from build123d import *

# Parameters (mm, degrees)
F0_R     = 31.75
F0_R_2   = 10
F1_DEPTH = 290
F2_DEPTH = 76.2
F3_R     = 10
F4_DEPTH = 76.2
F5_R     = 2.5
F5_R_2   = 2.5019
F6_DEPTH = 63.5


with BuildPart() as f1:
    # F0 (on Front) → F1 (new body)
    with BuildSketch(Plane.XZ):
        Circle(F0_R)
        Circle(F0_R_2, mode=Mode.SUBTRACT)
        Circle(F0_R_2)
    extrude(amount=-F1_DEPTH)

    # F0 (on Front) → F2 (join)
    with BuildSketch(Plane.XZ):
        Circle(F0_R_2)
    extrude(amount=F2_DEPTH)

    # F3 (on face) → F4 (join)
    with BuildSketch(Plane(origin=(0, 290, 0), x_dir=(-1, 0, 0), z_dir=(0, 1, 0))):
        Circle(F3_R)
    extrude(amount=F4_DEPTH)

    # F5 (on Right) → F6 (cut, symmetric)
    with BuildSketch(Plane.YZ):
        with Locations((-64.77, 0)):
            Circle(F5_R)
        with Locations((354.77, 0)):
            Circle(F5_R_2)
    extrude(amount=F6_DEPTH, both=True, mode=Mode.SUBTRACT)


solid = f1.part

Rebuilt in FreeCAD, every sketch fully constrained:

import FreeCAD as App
import Part
import Sketcher
from FreeCAD import Vector
Q = App.Units.Quantity

doc = App.newDocument("Part")
body = doc.addObject("PartDesign::Body", "Body")

# Sketch on XZ plane
sketch1 = doc.addObject("Sketcher::SketchObject", "Sketch")
body.addObject(sketch1)
sketch1.AttachmentSupport = (doc.XZ_Plane, [""])
sketch1.MapMode = "FlatFace"
sketch1.addGeometry(Part.Circle(Vector(0, 0, 0), Vector(0, 0, 1), 32), False)
sketch1.addConstraint([
    Sketcher.Constraint("Coincident", 0, 3, -1, 1),
    Sketcher.Constraint("Diameter", 0, Q("63.5 mm")),
])
pad1 = doc.addObject("PartDesign::Pad", "Pad")
body.addObject(pad1)
pad1.Profile = sketch1
pad1.Length = 290
pad1.Reversed = True

# Sketch on XZ plane
sketch2 = doc.addObject("Sketcher::SketchObject", "Sketch001")
body.addObject(sketch2)
sketch2.AttachmentSupport = (doc.XZ_Plane, [""])
sketch2.MapMode = "FlatFace"
sketch2.addGeometry(Part.Circle(Vector(0, 0, 0), Vector(0, 0, 1), 10), False)
sketch2.addConstraint([
    Sketcher.Constraint("Coincident", 0, 3, -1, 1),
    Sketcher.Constraint("Diameter", 0, Q("20 mm")),
])
pad2 = doc.addObject("PartDesign::Pad", "Pad001")
body.addObject(pad2)
pad2.Profile = sketch2
pad2.Length = 76.2

# Sketch on XZ plane
sketch3 = doc.addObject("Sketcher::SketchObject", "Sketch002")
body.addObject(sketch3)
sketch3.AttachmentSupport = (doc.XZ_Plane, [""])
sketch3.MapMode = "FlatFace"
sketch3.AttachmentOffset = App.Placement(Vector(0, 0, -290), App.Rotation())
sketch3.addGeometry(Part.Circle(Vector(0, 0, 0), Vector(0, 0, 1), 10), False)
sketch3.addConstraint([
    Sketcher.Constraint("Coincident", 0, 3, -1, 1),
    Sketcher.Constraint("Diameter", 0, Q("20 mm")),
])
pad3 = doc.addObject("PartDesign::Pad", "Pad002")
body.addObject(pad3)
pad3.Profile = sketch3
pad3.Length = 76.2
pad3.Reversed = True

# Sketch on YZ plane
sketch4 = doc.addObject("Sketcher::SketchObject", "Sketch003")
body.addObject(sketch4)
sketch4.AttachmentSupport = (doc.YZ_Plane, [""])
sketch4.MapMode = "FlatFace"
sketch4.addGeometry([
    Part.Circle(Vector(-64.8, 0, 0), Vector(0, 0, 1), 2.5),
    Part.Circle(Vector(354.8, 0, 0), Vector(0, 0, 1), 2.5),
], False)
sketch4.addConstraint([
    Sketcher.Constraint("PointOnObject", 0, 3, -1),
    Sketcher.Constraint("PointOnObject", 1, 3, -1),
    Sketcher.Constraint("Diameter", 0, Q("5 mm")),
    Sketcher.Constraint("Diameter", 1, Q("5.0038 mm")),
    Sketcher.Constraint("DistanceX", 0, 3, -1, 1, Q("64.77 mm")),
    Sketcher.Constraint("DistanceX", -1, 1, 1, 3, Q("354.77 mm")),
])
pocket1 = doc.addObject("PartDesign::Pocket", "Pocket")
body.addObject(pocket1)
pocket1.Profile = sketch4
pocket1.Length = 127
pocket1.Midplane = True

doc.recompute()
